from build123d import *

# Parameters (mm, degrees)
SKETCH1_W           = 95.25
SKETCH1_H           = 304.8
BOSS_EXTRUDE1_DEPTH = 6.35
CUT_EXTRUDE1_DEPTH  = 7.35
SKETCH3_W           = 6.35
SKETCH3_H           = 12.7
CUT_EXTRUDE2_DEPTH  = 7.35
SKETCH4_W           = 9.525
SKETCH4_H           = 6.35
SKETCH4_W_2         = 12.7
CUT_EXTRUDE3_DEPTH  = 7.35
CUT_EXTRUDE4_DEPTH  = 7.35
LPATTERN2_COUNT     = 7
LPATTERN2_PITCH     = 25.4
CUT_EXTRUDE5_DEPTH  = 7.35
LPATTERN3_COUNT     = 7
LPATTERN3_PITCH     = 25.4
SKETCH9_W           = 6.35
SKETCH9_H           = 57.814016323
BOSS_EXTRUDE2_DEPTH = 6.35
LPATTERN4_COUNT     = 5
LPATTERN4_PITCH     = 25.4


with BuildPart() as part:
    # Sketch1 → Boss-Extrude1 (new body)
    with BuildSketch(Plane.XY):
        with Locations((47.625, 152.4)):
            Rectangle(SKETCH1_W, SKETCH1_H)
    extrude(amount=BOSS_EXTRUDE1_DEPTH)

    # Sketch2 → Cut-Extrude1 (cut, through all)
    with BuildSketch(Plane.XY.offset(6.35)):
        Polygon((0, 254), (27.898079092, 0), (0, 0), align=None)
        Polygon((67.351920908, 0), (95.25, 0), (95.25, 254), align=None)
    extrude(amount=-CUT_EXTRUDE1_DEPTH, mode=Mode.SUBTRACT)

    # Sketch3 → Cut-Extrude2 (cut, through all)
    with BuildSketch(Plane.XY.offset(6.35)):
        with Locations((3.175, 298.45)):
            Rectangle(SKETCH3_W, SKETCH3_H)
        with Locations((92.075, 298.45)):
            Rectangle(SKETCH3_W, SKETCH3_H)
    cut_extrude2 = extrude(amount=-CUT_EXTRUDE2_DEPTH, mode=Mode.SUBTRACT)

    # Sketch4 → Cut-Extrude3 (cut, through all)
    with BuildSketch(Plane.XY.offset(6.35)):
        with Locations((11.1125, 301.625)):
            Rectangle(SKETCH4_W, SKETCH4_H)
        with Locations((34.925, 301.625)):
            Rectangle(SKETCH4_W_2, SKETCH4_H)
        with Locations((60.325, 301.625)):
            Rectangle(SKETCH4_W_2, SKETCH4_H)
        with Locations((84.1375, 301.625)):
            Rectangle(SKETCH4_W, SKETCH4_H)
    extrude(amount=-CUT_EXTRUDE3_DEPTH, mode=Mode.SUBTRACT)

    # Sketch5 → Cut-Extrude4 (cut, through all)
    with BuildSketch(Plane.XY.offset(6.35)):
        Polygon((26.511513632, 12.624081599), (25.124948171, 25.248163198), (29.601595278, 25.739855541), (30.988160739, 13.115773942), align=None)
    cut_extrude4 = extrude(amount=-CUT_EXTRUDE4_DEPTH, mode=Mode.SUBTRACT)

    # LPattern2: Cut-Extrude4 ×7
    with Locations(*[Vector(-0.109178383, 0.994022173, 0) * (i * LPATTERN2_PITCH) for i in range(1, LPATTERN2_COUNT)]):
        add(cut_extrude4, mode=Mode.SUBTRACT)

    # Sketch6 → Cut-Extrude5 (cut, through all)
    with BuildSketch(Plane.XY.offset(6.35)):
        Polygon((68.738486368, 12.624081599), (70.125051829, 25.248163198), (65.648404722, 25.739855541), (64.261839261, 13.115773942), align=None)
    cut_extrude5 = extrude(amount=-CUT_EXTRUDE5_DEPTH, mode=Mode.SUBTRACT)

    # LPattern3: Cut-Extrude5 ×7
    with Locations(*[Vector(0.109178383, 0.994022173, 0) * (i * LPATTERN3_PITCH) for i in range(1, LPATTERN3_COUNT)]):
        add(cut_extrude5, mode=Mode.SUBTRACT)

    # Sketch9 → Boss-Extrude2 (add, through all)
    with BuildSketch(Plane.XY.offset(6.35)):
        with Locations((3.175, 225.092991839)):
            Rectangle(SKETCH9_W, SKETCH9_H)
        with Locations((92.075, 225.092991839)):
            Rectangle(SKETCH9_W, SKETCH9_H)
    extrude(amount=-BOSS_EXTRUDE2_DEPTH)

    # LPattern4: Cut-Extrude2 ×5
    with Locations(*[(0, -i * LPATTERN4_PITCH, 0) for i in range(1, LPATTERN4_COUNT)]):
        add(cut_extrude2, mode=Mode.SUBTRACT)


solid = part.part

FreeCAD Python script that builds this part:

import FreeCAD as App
import Part
import Sketcher
from FreeCAD import Vector
Q = App.Units.Quantity

doc = App.newDocument("Part")
body = doc.addObject("PartDesign::Body", "Body")

sketch1 = body.newObject("Sketcher::SketchObject", "Sketch")
sketch1.AttachmentSupport = (doc.getObject("XY_Plane"), [""])
sketch1.MapMode = "FlatFace"
sketch1.addGeometry([
    Part.LineSegment(Vector(0, 305, 0), Vector(0, 0, 0)),
    Part.LineSegment(Vector(0, 0, 0), Vector(95, 0, 0)),
    Part.LineSegment(Vector(95, 0, 0), Vector(95, 305, 0)),
    Part.LineSegment(Vector(95, 305, 0), Vector(0, 305, 0)),
], False)
sketch1.addConstraint([
    Sketcher.Constraint("Coincident", 0, 2, 1, 1),
    Sketcher.Constraint("Coincident", 1, 2, 2, 1),
    Sketcher.Constraint("Coincident", 2, 2, 3, 1),
    Sketcher.Constraint("Coincident", 3, 2, 0, 1),
    Sketcher.Constraint("Vertical", 0),
    Sketcher.Constraint("Horizontal", 1),
    Sketcher.Constraint("Vertical", 2),
    Sketcher.Constraint("Horizontal", 3),
    Sketcher.Constraint("Coincident", 0, 2, -1, 1),
    Sketcher.Constraint("DistanceY", 0, 2, 0, 1, Q("12 in")),
    Sketcher.Constraint("DistanceX", 1, 1, 1, 2, Q("3.75 in")),
])
pad1 = body.newObject("PartDesign::Pad", "Pad")
pad1.Profile = sketch1
pad1.Length = Q("0.25 in")

sketch2 = body.newObject("Sketcher::SketchObject", "Sketch001")
sketch2.AttachmentSupport = (doc.getObject("XY_Plane"), [""])
sketch2.MapMode = "FlatFace"
sketch2.AttachmentOffset = App.Placement(Vector(0, 0, 0.25 * 25.4), App.Rotation())
sketch2.addGeometry([
    Part.LineSegment(Vector(28, 0, 0), Vector(0, 254, 0)),
    Part.LineSegment(Vector(0, 254, 0), Vector(0, 0, 0)),
    Part.LineSegment(Vector(0, 0, 0), Vector(28, 0, 0)),
    Part.LineSegment(Vector(67, 0, 0), Vector(95, 0, 0)),
    Part.LineSegment(Vector(95, 0, 0), Vector(95, 254, 0)),
    Part.LineSegment(Vector(95, 254, 0), Vector(67, 0, 0)),
], False)
sketch2.addConstraint([
    Sketcher.Constraint("Coincident", 0, 2, 1, 1),
    Sketcher.Constraint("Coincident", 1, 2, 2, 1),
    Sketcher.Constraint("Coincident", 2, 2, 0, 1),
    Sketcher.Constraint("Coincident", 3, 2, 4, 1),
    Sketcher.Constraint("Coincident", 4, 2, 5, 1),
    Sketcher.Constraint("Coincident", 5, 2, 3, 1),
    Sketcher.Constraint("Vertical", 1),
    Sketcher.Constraint("Horizontal", 2),
    Sketcher.Constraint("Horizontal", 3),
    Sketcher.Constraint("Vertical", 4),
    Sketcher.Constraint("Coincident", 1, 2, -1, 1),
    Sketcher.Constraint("PointOnObject", 3, 2, -1),
    Sketcher.Constraint("Horizontal", 0, 2, 4, 2),
    Sketcher.Constraint("Equal", 2, 3),
    Sketcher.Constraint("DistanceY", 1, 2, 1, 1, Q("10 in")),
    Sketcher.Constraint("DistanceX", -1, 1, 3, 2, Q("3.75 in")),
    Sketcher.Constraint("Distance", 0, 255.527499),
])
pocket1 = body.newObject("PartDesign::Pocket", "Pocket")
pocket1.Profile = sketch2
pocket1.Type = "ThroughAll"

sketch3 = body.newObject("Sketcher::SketchObject", "Sketch002")
sketch3.AttachmentSupport = (doc.getObject("XY_Plane"), [""])
sketch3.MapMode = "FlatFace"
sketch3.AttachmentOffset = App.Placement(Vector(0, 0, 0.25 * 25.4), App.Rotation())
sketch3.addGeometry([
    Part.LineSegment(Vector(0, 305, 0), Vector(0, 292, 0)),
    Part.LineSegment(Vector(0, 292, 0), Vector(6, 292, 0)),
    Part.LineSegment(Vector(6, 292, 0), Vector(6, 305, 0)),
    Part.LineSegment(Vector(6, 305, 0), Vector(0, 305, 0)),
    Part.LineSegment(Vector(89, 305, 0), Vector(89, 292, 0)),
    Part.LineSegment(Vector(89, 292, 0), Vector(95, 292, 0)),
    Part.LineSegment(Vector(95, 292, 0), Vector(95, 305, 0)),
    Part.LineSegment(Vector(95, 305, 0), Vector(89, 305, 0)),
], False)
sketch3.addConstraint([
    Sketcher.Constraint("Coincident", 0, 2, 1, 1),
    Sketcher.Constraint("Coincident", 1, 2, 2, 1),
    Sketcher.Constraint("Coincident", 2, 2, 3, 1),
    Sketcher.Constraint("Coincident", 3, 2, 0, 1),
    Sketcher.Constraint("Coincident", 4, 2, 5, 1),
    Sketcher.Constraint("Coincident", 5, 2, 6, 1),
    Sketcher.Constraint("Coincident", 6, 2, 7, 1),
    Sketcher.Constraint("Coincident", 7, 2, 4, 1),
    Sketcher.Constraint("Vertical", 0),
    Sketcher.Constraint("Horizontal", 1),
    Sketcher.Constraint("Vertical", 2),
    Sketcher.Constraint("Horizontal", 3),
    Sketcher.Constraint("Vertical", 4),
    Sketcher.Constraint("Horizontal", 5),
    Sketcher.Constraint("Vertical", 6),
    Sketcher.Constraint("Horizontal", 7),
    Sketcher.Constraint("PointOnObject", 0, 2, -2),
    Sketcher.Constraint("Horizontal", 1, 2, 4, 2),
    Sketcher.Constraint("Horizontal", 3, 2, 6, 2),
    Sketcher.Constraint("Equal", 3, 5),
    Sketcher.Constraint("DistanceY", 0, 2, 0, 1, Q("0.5 in")),
    Sketcher.Constraint("DistanceY", -1, 1, 2, 2, Q("12 in")),
    Sketcher.Constraint("DistanceX", 1, 1, 1, 2, Q("0.25 in")),
    Sketcher.Constraint("DistanceX", -1, 1, 4, 2, Q("3.5 in")),
])
pocket2 = body.newObject("PartDesign::Pocket", "Pocket001")
pocket2.Profile = sketch3
pocket2.Type = "ThroughAll"

sketch4 = body.newObject("Sketcher::SketchObject", "Sketch003")
sketch4.AttachmentSupport = (doc.getObject("XY_Plane"), [""])
sketch4.MapMode = "FlatFace"
sketch4.AttachmentOffset = App.Placement(Vector(0, 0, 0.25 * 25.4), App.Rotation())
sketch4.addGeometry([
    Part.LineSegment(Vector(6, 305, 0), Vector(6, 298, 0)),
    Part.LineSegment(Vector(6, 298, 0), Vector(16, 298, 0)),
    Part.LineSegment(Vector(16, 298, 0), Vector(16, 305, 0)),
    Part.LineSegment(Vector(16, 305, 0), Vector(6, 305, 0)),
    Part.LineSegment(Vector(29, 305, 0), Vector(29, 298, 0)),
    Part.LineSegment(Vector(29, 298, 0), Vector(41, 298, 0)),
    Part.LineSegment(Vector(41, 298, 0), Vector(41, 305, 0)),
    Part.LineSegment(Vector(41, 305, 0), Vector(29, 305, 0)),
    Part.LineSegment(Vector(54, 305, 0), Vector(54, 298, 0)),
    Part.LineSegment(Vector(54, 298, 0), Vector(67, 298, 0)),
    Part.LineSegment(Vector(67, 298, 0), Vector(67, 305, 0)),
    Part.LineSegment(Vector(67, 305, 0), Vector(54, 305, 0)),
    Part.LineSegment(Vector(79, 305, 0), Vector(79, 298, 0)),
    Part.LineSegment(Vector(79, 298, 0), Vector(89, 298, 0)),
    Part.LineSegment(Vector(89, 298, 0), Vector(89, 305, 0)),
    Part.LineSegment(Vector(89, 305, 0), Vector(79, 305, 0)),
], False)
sketch4.addConstraint([
    Sketcher.Constraint("Coincident", 0, 2, 1, 1),
    Sketcher.Constraint("Coincident", 1, 2, 2, 1),
    Sketcher.Constraint("Coincident", 2, 2, 3, 1),
    Sketcher.Constraint("Coincident", 3, 2, 0, 1),
    Sketcher.Constraint("Coincident", 4, 2, 5, 1),
    Sketcher.Constraint("Coincident", 5, 2, 6, 1),
    Sketcher.Constraint("Coincident", 6, 2, 7, 1),
    Sketcher.Constraint("Coincident", 7, 2, 4, 1),
    Sketcher.Constraint("Coincident", 8, 2, 9, 1),
    Sketcher.Constraint("Coincident", 9, 2, 10, 1),
    Sketcher.Constraint("Coincident", 10, 2, 11, 1),
    Sketcher.Constraint("Coincident", 11, 2, 8, 1),
    Sketcher.Constraint("Coincident", 12, 2, 13, 1),
    Sketcher.Constraint("Coincident", 13, 2, 14, 1),
    Sketcher.Constraint("Coincident", 14, 2, 15, 1),
    Sketcher.Constraint("Coincident", 15, 2, 12, 1),
    Sketcher.Constraint("Vertical", 0),
    Sketcher.Constraint("Horizontal", 1),
    Sketcher.Constraint("Vertical", 2),
    Sketcher.Constraint("Horizontal", 3),
    Sketcher.Constraint("Vertical", 4),
    Sketcher.Constraint("Horizontal", 5),
    Sketcher.Constraint("Vertical", 6),
    Sketcher.Constraint("Horizontal", 7),
    Sketcher.Constraint("Vertical", 8),
    Sketcher.Constraint("Horizontal", 9),
    Sketcher.Constraint("Vertical", 10),
    Sketcher.Constraint("Horizontal", 11),
    Sketcher.Constraint("Vertical", 12),
    Sketcher.Constraint("Horizontal", 13),
    Sketcher.Constraint("Vertical", 14),
    Sketcher.Constraint("Horizontal", 15),
    Sketcher.Constraint("Horizontal", 1, 2, 4, 2),
    Sketcher.Constraint("Horizontal", 3, 2, 6, 2),
    Sketcher.Constraint("Horizontal", 5, 2, 8, 2),
    Sketcher.Constraint("Horizontal", 7, 2, 10, 2),
    Sketcher.Constraint("Horizontal", 9, 2, 12, 2),
    Sketcher.Constraint("Horizontal", 11, 2, 14, 2),
    Sketcher.Constraint("Equal", 7, 9),
    Sketcher.Constraint("Equal", 3, 13),
    Sketcher.Constraint("DistanceX", 5, 1, 5, 2, Q("0.5 in")),
    Sketcher.Constraint("DistanceY", -1, 1, 2, 2, Q("12 in")),
    Sketcher.Constraint("DistanceX", 1, 2, 5, 2, Q("1 in")),
    Sketcher.Constraint("DistanceX", 4, 2, 8, 2, Q("1 in")),
    Sketcher.Constraint("DistanceX", 8, 2, 12, 2, Q("1 in")),
    Sketcher.Constraint("DistanceY", 0, 2, 0, 1, Q("0.25 in")),
    Sketcher.Constraint("DistanceX", -1, 1, 13, 2, Q("3.5 in")),
    Sketcher.Constraint("DistanceX", 1, 1, 1, 2, Q("0.375 in")),
])
pocket3 = body.newObject("PartDesign::Pocket", "Pocket002")
pocket3.Profile = sketch4
pocket3.Type = "ThroughAll"

sketch5 = body.newObject("Sketcher::SketchObject", "Sketch004")
sketch5.AttachmentSupport = (doc.getObject("XY_Plane"), [""])
sketch5.MapMode = "FlatFace"
sketch5.AttachmentOffset = App.Placement(Vector(0, 0, 0.25 * 25.4), App.Rotation())
sketch5.addGeometry([
    Part.LineSegment(Vector(25.1, 25.2, 0), Vector(26.5, 12.6, 0)),
    Part.LineSegment(Vector(26.5, 12.6, 0), Vector(31, 13.1, 0)),
    Part.LineSegment(Vector(31, 13.1, 0), Vector(29.6, 25.7, 0)),
    Part.LineSegment(Vector(29.6, 25.7, 0), Vector(25.1, 25.2, 0)),
], False)
sketch5.addConstraint([
    Sketcher.Constraint("Coincident", 0, 2, 1, 1),
    Sketcher.Constraint("Coincident", 1, 2, 2, 1),
    Sketcher.Constraint("Coincident", 2, 2, 3, 1),
    Sketcher.Constraint("Coincident", 3, 2, 0, 1),
    Sketcher.Constraint("Perpendicular", 0, 1),
    Sketcher.Constraint("Perpendicular", 1, 2),
    Sketcher.Constraint("Perpendicular", 2, 3),
    Sketcher.Constraint("Distance", 0, Q("0.5 in")),
    Sketcher.Constraint("Distance", 1, 4.503569),
    Sketcher.Constraint("DistanceY", -1, 1, 0, 2, 12.624082),
    Sketcher.Constraint("DistanceX", -1, 1, 1, 2, 30.988161),
    Sketcher.Constraint("DistanceX", -1, 1, 3, 2, 25.124948),
])
pocket4 = body.newObject("PartDesign::Pocket", "Pocket003")
pocket4.Profile = sketch5
pocket4.Type = "ThroughAll"
doc.recompute()

datumline = body.newObject("PartDesign::Line", "DatumLine")
datumline.Placement = App.Placement(Vector(0, 0, 0), App.Rotation(Vector(0, 0, 1), Vector(-0.109178383, 0.994022173, 0)))
linearpattern = body.newObject("PartDesign::LinearPattern", "LinearPattern")
linearpattern.Originals = [pocket4]
linearpattern.Direction = (datumline, [""])
linearpattern.Mode = "offset"
linearpattern.Offset = Q("1 in")
linearpattern.Occurrences = 7
body.Tip = linearpattern

sketch6 = body.newObject("Sketcher::SketchObject", "Sketch005")
sketch6.AttachmentSupport = (doc.getObject("XY_Plane"), [""])
sketch6.MapMode = "FlatFace"
sketch6.AttachmentOffset = App.Placement(Vector(0, 0, 0.25 * 25.4), App.Rotation())
sketch6.addGeometry([
    Part.LineSegment(Vector(68.7, 12.6, 0), Vector(70.1, 25.2, 0)),
    Part.LineSegment(Vector(70.1, 25.2, 0), Vector(65.6, 25.7, 0)),
    Part.LineSegment(Vector(65.6, 25.7, 0), Vector(64.3, 13.1, 0)),
    Part.LineSegment(Vector(64.3, 13.1, 0), Vector(68.7, 12.6, 0)),
], False)
sketch6.addConstraint([
    Sketcher.Constraint("Coincident", 0, 2, 1, 1),
    Sketcher.Constraint("Coincident", 1, 2, 2, 1),
    Sketcher.Constraint("Coincident", 2, 2, 3, 1),
    Sketcher.Constraint("Coincident", 3, 2, 0, 1),
    Sketcher.Constraint("Perpendicular", 0, 1),
    Sketcher.Constraint("Perpendicular", 1, 2),
    Sketcher.Constraint("Perpendicular", 2, 3),
    Sketcher.Constraint("Distance", 0, Q("0.5 in")),
    Sketcher.Constraint("Distance", 1, 4.503569),
    Sketcher.Constraint("DistanceX", -1, 1, 0, 2, 70.125052),
    Sketcher.Constraint("DistanceX", -1, 1, 2, 2, 64.261839),
    Sketcher.Constraint("DistanceY", -1, 1, 3, 2, 12.624082),
])
pocket5 = body.newObject("PartDesign::Pocket", "Pocket004")
pocket5.Profile = sketch6
pocket5.Type = "ThroughAll"
doc.recompute()

datumline2 = body.newObject("PartDesign::Line", "DatumLine001")
datumline2.Placement = App.Placement(Vector(0, 0, 0), App.Rotation(Vector(0, 0, 1), Vector(0.109178383, 0.994022173, 0)))
linearpattern2 = body.newObject("PartDesign::LinearPattern", "LinearPattern001")
linearpattern2.Originals = [pocket5]
linearpattern2.Direction = (datumline2, [""])
linearpattern2.Mode = "offset"
linearpattern2.Offset = Q("1 in")
linearpattern2.Occurrences = 7
body.Tip = linearpattern2

sketch7 = body.newObject("Sketcher::SketchObject", "Sketch006")
sketch7.AttachmentSupport = (doc.getObject("XY_Plane"), [""])
sketch7.MapMode = "FlatFace"
sketch7.AttachmentOffset = App.Placement(Vector(0, 0, 0.25 * 25.4), App.Rotation())
sketch7.addGeometry([
    Part.LineSegment(Vector(0, 254, 0), Vector(0, 196, 0)),
    Part.LineSegment(Vector(0, 196, 0), Vector(6, 196, 0)),
    Part.LineSegment(Vector(6, 196, 0), Vector(6, 254, 0)),
    Part.LineSegment(Vector(6, 254, 0), Vector(0, 254, 0)),
    Part.LineSegment(Vector(89, 254, 0), Vector(89, 196, 0)),
    Part.LineSegment(Vector(89, 196, 0), Vector(95, 196, 0)),
    Part.LineSegment(Vector(95, 196, 0), Vector(95, 254, 0)),
    Part.LineSegment(Vector(95, 254, 0), Vector(89, 254, 0)),
], False)
sketch7.addConstraint([
    Sketcher.Constraint("Coincident", 0, 2, 1, 1),
    Sketcher.Constraint("Coincident", 1, 2, 2, 1),
    Sketcher.Constraint("Coincident", 2, 2, 3, 1),
    Sketcher.Constraint("Coincident", 3, 2, 0, 1),
    Sketcher.Constraint("Coincident", 4, 2, 5, 1),
    Sketcher.Constraint("Coincident", 5, 2, 6, 1),
    Sketcher.Constraint("Coincident", 6, 2, 7, 1),
    Sketcher.Constraint("Coincident", 7, 2, 4, 1),
    Sketcher.Constraint("Vertical", 0),
    Sketcher.Constraint("Horizontal", 1),
    Sketcher.Constraint("Vertical", 2),
    Sketcher.Constraint("Horizontal", 3),
    Sketcher.Constraint("Vertical", 4),
    Sketcher.Constraint("Horizontal", 5),
    Sketcher.Constraint("Vertical", 6),
    Sketcher.Constraint("Horizontal", 7),
    Sketcher.Constraint("PointOnObject", 0, 2, -2),
    Sketcher.Constraint("Horizontal", 1, 2, 4, 2),
    Sketcher.Constraint("Horizontal", 3, 2, 6, 2),
    Sketcher.Constraint("Equal", 3, 5),
    Sketcher.Constraint("DistanceY", -1, 1, 2, 2, Q("10 in")),
    Sketcher.Constraint("DistanceX", 1, 1, 1, 2, Q("0.25 in")),
    Sketcher.Constraint("DistanceX", -1, 1, 4, 2, Q("3.5 in")),
    Sketcher.Constraint("DistanceY", 0, 2, 0, 1, 57.814016),
])
pad2 = body.newObject("PartDesign::Pad", "Pad001")
pad2.Profile = sketch7
pad2.Type = "UpToLast"
pad2.Reversed = True
doc.recompute()

linearpattern3 = body.newObject("PartDesign::LinearPattern", "LinearPattern002")
linearpattern3.Originals = [pocket2]
linearpattern3.Direction = (doc.getObject("Y_Axis"), [""])
linearpattern3.Mode = "offset"
linearpattern3.Offset = Q("1 in")
linearpattern3.Occurrences = 5
linearpattern3.Reversed = True
body.Tip = linearpattern3

doc.recompute()
